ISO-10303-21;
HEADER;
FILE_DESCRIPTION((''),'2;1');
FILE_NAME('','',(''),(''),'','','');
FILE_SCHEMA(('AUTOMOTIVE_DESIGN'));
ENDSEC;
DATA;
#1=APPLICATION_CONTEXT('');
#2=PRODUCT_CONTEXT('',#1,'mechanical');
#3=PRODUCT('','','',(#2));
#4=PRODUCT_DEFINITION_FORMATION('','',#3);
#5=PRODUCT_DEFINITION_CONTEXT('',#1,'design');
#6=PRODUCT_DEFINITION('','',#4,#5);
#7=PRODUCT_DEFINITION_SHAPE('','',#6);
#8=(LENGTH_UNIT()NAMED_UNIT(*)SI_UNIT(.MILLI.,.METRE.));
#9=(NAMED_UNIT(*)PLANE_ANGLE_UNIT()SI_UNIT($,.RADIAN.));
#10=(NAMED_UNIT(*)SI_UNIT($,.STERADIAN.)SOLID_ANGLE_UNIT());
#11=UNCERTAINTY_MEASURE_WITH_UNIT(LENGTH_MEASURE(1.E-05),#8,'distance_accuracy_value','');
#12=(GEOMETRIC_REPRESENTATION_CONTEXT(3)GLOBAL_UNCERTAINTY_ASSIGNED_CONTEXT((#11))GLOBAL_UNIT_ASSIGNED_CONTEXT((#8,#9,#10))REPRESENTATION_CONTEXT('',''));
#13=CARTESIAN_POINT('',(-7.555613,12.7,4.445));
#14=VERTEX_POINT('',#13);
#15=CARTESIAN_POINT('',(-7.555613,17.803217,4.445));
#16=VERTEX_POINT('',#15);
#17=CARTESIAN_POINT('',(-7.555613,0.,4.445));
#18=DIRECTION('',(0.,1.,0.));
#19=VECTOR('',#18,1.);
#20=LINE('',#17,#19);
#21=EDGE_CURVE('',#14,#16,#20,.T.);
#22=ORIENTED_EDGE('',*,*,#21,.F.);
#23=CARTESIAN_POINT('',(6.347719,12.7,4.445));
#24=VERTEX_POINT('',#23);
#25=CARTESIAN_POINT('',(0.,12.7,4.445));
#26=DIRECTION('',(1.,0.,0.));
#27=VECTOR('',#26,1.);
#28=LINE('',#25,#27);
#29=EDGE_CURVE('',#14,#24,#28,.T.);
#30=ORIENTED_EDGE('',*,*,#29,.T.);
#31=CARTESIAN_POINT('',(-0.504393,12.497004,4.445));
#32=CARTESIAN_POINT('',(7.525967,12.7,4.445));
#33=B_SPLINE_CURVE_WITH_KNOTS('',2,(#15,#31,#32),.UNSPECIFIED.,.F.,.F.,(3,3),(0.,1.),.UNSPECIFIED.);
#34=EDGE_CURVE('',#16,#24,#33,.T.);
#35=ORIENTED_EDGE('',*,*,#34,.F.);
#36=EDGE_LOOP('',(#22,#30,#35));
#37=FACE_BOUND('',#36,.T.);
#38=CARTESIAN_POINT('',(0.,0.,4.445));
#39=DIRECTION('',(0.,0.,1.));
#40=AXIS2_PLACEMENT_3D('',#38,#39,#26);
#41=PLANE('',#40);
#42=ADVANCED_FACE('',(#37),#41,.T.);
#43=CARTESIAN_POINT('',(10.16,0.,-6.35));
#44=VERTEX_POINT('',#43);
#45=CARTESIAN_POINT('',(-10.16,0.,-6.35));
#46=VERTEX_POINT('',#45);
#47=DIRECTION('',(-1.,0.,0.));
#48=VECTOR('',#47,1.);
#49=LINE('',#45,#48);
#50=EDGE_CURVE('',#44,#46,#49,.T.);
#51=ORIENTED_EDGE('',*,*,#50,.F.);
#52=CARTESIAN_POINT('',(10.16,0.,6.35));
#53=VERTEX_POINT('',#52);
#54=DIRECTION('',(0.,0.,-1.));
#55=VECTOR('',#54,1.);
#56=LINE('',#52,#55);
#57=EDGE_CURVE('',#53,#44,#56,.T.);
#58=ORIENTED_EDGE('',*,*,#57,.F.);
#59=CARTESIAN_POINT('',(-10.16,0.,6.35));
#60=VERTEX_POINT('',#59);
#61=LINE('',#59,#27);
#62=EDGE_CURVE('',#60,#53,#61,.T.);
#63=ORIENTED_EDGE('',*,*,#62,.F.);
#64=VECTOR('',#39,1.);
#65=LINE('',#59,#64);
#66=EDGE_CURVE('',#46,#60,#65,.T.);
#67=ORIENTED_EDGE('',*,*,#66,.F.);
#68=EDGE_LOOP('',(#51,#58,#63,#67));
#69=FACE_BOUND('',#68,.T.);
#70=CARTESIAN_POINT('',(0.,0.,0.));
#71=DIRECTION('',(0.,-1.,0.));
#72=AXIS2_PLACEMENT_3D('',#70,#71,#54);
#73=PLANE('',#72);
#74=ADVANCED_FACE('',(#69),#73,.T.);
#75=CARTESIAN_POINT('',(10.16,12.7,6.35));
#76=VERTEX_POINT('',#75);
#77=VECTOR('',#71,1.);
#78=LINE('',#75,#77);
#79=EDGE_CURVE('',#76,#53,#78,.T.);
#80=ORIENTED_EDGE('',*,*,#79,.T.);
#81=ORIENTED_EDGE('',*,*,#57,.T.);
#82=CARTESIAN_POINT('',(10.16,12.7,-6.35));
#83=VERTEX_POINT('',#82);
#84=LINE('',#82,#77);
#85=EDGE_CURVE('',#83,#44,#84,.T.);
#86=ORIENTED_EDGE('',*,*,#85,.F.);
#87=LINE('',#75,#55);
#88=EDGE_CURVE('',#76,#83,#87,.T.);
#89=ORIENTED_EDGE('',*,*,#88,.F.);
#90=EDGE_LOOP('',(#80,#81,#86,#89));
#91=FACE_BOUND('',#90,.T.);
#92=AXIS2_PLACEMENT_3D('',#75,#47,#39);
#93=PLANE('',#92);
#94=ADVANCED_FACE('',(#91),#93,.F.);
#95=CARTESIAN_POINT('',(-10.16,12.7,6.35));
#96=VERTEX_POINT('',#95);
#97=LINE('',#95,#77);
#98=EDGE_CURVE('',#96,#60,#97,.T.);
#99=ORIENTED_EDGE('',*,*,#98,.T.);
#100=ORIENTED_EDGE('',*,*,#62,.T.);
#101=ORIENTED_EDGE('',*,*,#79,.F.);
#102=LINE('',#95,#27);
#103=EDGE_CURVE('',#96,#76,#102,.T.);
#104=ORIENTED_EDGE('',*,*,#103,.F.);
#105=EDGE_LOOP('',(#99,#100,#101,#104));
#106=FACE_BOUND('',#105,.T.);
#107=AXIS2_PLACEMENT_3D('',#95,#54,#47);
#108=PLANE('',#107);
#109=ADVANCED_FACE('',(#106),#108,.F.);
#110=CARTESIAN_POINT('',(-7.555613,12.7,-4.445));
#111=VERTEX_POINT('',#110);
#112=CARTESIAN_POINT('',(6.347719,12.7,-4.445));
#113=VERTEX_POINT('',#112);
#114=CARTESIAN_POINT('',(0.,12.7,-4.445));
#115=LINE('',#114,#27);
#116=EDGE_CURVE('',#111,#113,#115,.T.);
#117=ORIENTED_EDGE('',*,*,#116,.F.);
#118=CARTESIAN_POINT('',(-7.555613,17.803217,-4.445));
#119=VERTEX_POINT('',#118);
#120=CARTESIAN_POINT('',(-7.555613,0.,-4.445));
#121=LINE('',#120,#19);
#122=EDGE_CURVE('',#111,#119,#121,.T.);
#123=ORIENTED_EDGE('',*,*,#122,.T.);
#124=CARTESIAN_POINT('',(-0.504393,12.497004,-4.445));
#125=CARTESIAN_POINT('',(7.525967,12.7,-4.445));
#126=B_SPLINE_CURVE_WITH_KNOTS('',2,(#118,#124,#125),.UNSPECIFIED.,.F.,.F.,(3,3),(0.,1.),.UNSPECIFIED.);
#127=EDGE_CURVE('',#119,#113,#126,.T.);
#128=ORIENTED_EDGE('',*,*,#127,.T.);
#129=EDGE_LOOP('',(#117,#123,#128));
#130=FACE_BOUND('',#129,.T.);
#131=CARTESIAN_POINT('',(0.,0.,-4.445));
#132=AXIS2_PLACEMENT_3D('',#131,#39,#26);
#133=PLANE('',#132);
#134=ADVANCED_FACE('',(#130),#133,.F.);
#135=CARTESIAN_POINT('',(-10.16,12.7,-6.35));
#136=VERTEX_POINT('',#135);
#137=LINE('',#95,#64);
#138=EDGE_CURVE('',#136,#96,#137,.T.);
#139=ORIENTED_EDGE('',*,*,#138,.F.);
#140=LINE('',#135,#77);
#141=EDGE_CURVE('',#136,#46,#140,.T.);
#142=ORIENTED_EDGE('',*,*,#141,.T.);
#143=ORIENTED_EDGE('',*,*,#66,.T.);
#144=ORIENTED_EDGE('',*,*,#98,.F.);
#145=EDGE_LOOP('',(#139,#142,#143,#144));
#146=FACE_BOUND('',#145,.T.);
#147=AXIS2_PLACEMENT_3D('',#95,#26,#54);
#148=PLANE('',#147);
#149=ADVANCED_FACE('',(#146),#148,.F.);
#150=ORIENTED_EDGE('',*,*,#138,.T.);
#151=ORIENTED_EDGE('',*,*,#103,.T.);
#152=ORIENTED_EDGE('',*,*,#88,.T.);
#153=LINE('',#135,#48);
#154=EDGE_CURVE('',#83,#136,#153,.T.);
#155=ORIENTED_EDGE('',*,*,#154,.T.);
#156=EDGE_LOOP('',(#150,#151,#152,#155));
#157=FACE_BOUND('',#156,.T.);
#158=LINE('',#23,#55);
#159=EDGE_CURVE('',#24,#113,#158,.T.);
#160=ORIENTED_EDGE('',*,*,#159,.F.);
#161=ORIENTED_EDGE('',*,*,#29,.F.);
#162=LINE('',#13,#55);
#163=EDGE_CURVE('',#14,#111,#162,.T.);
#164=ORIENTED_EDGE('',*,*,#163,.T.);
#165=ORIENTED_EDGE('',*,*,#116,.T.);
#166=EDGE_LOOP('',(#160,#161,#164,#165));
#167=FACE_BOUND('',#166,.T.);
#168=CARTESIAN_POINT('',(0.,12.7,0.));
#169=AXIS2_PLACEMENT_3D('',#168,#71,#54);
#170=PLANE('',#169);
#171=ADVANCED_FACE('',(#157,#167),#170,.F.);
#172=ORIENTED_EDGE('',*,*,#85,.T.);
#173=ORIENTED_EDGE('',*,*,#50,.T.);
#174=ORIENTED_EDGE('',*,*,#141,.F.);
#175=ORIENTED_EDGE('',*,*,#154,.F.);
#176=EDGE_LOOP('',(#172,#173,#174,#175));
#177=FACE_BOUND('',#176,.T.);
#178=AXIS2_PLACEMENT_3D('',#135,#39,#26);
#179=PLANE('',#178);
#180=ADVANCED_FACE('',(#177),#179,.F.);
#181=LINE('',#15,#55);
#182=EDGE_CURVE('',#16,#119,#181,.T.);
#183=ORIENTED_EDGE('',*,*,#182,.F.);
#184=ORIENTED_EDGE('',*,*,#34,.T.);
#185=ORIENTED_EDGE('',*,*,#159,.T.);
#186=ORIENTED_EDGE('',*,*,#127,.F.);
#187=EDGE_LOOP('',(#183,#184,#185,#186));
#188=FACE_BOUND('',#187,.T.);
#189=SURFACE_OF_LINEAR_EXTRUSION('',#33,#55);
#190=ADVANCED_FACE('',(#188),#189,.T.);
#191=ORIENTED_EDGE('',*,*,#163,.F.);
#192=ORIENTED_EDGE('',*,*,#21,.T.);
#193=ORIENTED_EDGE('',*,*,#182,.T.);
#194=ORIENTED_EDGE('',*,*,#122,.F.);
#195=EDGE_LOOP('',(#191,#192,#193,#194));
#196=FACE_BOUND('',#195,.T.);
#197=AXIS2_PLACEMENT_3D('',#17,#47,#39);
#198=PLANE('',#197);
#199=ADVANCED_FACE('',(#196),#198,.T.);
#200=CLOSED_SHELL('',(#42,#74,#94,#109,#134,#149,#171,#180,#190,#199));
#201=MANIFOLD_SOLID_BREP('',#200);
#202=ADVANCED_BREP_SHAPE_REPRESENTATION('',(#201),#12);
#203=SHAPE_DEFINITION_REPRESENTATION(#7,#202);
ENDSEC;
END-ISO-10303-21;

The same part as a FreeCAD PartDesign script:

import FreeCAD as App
import Part
import Sketcher
from FreeCAD import Vector
Q = App.Units.Quantity

doc = App.newDocument("Part")
params = doc.addObject("Spreadsheet::Sheet", "Params")
for row, (alias, value) in enumerate([
    ("sketch1_width", "0.8 in"),
    ("sketch1_height", "0.5 in"),
    ("pad1_length", "0.5 in"),
    ("pad2_length", "0.35 in"),
], start=1):
    params.set(f"A{row}", alias)
    params.set(f"B{row}", "=" + value)
    params.setAlias(f"B{row}", alias)

body = doc.addObject("PartDesign::Body", "Body")

sketch1 = body.newObject("Sketcher::SketchObject", "Sketch")
sketch1.AttachmentSupport = (doc.getObject("XZ_Plane"), [""])
sketch1.MapMode = "FlatFace"
sketch1.addGeometry(Part.LineSegment(Vector(-10.16, -6.35, 0), Vector(-10.16, 6.35, 0)), False)
sketch1.addGeometry(Part.LineSegment(Vector(-10.16, 6.35, 0), Vector(10.16, 6.35, 0)), False)
sketch1.addGeometry(Part.LineSegment(Vector(10.16, 6.35, 0), Vector(10.16, -6.35, 0)), False)
sketch1.addGeometry(Part.LineSegment(Vector(10.16, -6.35, 0), Vector(-10.16, -6.35, 0)), False)
sketch1.addConstraint(Sketcher.Constraint("Coincident", 0, 2, 1, 1))
sketch1.addConstraint(Sketcher.Constraint("Coincident", 1, 2, 2, 1))
sketch1.addConstraint(Sketcher.Constraint("Coincident", 2, 2, 3, 1))
sketch1.addConstraint(Sketcher.Constraint("Coincident", 3, 2, 0, 1))
sketch1.addConstraint(Sketcher.Constraint("Vertical", 0))
sketch1.addConstraint(Sketcher.Constraint("Horizontal", 1))
sketch1.addConstraint(Sketcher.Constraint("Vertical", 2))
sketch1.addConstraint(Sketcher.Constraint("Horizontal", 3))
sketch1.addConstraint(Sketcher.Constraint("Symmetric", 0, 2, 2, 2, -1, 1))
sketch1.addConstraint(Sketcher.Constraint("DistanceX", 1, 1, 1, 2, Q("0.8 in")))
sketch1.addConstraint(Sketcher.Constraint("DistanceY", 0, 1, 0, 2, Q("0.5 in")))
sketch1.setExpression("Constraints[9]", "Params.sketch1_width")
sketch1.setExpression("Constraints[10]", "Params.sketch1_height")
pad1 = body.newObject("PartDesign::Pad", "Pad")
pad1.Profile = sketch1
pad1.setExpression("Length", "Params.pad1_length")
pad1.Reversed = True

sketch2 = body.newObject("Sketcher::SketchObject", "Sketch001")
sketch2.AttachmentSupport = (doc.getObject("XY_Plane"), [""])
sketch2.MapMode = "FlatFace"
sketch2.addGeometry(Part.LineSegment(Vector(-7.555613, 17.803217, 0), Vector(-7.555613, 12.7, 0)), False)
sketch2.addGeometry(Part.LineSegment(Vector(-7.555613, 12.7, 0), Vector(6.347719, 12.7, 0)), False)
sketch2.addGeometry(Part.BSplineCurve([Vector(-7.555613, 17.803217, 0), Vector(-1.02402, 12.888036, 0), Vector(6.347719, 12.7, 0)], [3, 3], [0, 0.926306801], False, 2, [1, 1, 1], False), False)
sketch2.addConstraint(Sketcher.Constraint("Block", 2))
sketch2.addConstraint(Sketcher.Constraint("Coincident", 0, 2, 1, 1))
sketch2.addConstraint(Sketcher.Constraint("Coincident", 1, 2, 2, 2))
sketch2.addConstraint(Sketcher.Constraint("Coincident", 2, 1, 0, 1))
sketch2.addConstraint(Sketcher.Constraint("Vertical", 0))
sketch2.addConstraint(Sketcher.Constraint("Horizontal", 1))
pad2 = body.newObject("PartDesign::Pad", "Pad001")
pad2.Profile = sketch2
pad2.setExpression("Length", "Params.pad2_length")
pad2.Midplane = True

doc.recompute()
